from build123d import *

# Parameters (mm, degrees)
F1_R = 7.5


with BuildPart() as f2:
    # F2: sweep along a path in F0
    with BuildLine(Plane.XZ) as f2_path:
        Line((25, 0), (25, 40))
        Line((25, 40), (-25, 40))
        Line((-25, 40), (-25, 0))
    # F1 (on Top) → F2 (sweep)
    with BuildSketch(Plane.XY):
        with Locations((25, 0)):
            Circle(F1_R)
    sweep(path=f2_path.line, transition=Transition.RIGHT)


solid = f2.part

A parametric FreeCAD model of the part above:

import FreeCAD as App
import Part
import Sketcher
Q = App.Units.Quantity

doc = App.newDocument("Part")
params = doc.addObject("Spreadsheet::Sheet", "Params")
for row, (alias, value) in enumerate([
    ("sketch1_diameter", "15 mm"),
    ("sketch2_width", "50 mm"),
    ("sketch2_height", "40 mm"),
], start=1):
    params.set(f"A{row}", alias)
    params.set(f"B{row}", "=" + value)
    params.setAlias(f"B{row}", alias)

body = doc.addObject("PartDesign::Body", "Body")

# Sketch on XY plane
sketch1 = body.newObject("Sketcher::SketchObject", "Sketch")
sketch1.AttachmentSupport = (doc.getObject("XY_Plane"), [""])
sketch1.MapMode = "FlatFace"
sketch1.addGeometry(Part.Circle(App.Vector(25, 0, 0), App.Vector(0, 0, 1), 8), False)
sketch1.addConstraint([
    Sketcher.Constraint("PointOnObject", 0, 3, -1),
    Sketcher.Constraint("Diameter", 0, Q("15 mm")),
    Sketcher.Constraint("DistanceX", -1, 1, 0, 3, Q("25 mm")),
])
sketch1.setExpression("Constraints[1]", "Params.sketch1_diameter")

# Sketch on XZ plane
sketch2 = body.newObject("Sketcher::SketchObject", "Sketch001")
sketch2.AttachmentSupport = (doc.getObject("XZ_Plane"), [""])
sketch2.MapMode = "FlatFace"
sketch2.addGeometry([
    Part.LineSegment(App.Vector(25, 0, 0), App.Vector(25, 40, 0)),
    Part.LineSegment(App.Vector(25, 40, 0), App.Vector(-25, 40, 0)),
    Part.LineSegment(App.Vector(-25, 40, 0), App.Vector(-25, 0, 0)),
], False)
sketch2.addConstraint([
    Sketcher.Constraint("Coincident", 0, 2, 1, 1),
    Sketcher.Constraint("Coincident", 1, 2, 2, 1),
    Sketcher.Constraint("Vertical", 0),
    Sketcher.Constraint("Horizontal", 1),
    Sketcher.Constraint("Vertical", 2),
    Sketcher.Constraint("Symmetric", 0, 1, 2, 2, -1, 1),
    Sketcher.Constraint("PointOnObject", 0, 1, -1),
    Sketcher.Constraint("DistanceX", 1, 2, 1, 1, Q("50 mm")),
    Sketcher.Constraint("DistanceY", 0, 1, 0, 2, Q("40 mm")),
])
sketch2.setExpression("Constraints[7]", "Params.sketch2_width")
sketch2.setExpression("Constraints[8]", "Params.sketch2_height")
doc.recompute()

additivepipe = body.newObject("PartDesign::AdditivePipe", "AdditivePipe")
additivepipe.Profile = sketch1
additivepipe.Spine = (sketch2, ["Edge1", "Edge2", "Edge3"])
additivepipe.Transition = "Right corner"

doc.recompute()
